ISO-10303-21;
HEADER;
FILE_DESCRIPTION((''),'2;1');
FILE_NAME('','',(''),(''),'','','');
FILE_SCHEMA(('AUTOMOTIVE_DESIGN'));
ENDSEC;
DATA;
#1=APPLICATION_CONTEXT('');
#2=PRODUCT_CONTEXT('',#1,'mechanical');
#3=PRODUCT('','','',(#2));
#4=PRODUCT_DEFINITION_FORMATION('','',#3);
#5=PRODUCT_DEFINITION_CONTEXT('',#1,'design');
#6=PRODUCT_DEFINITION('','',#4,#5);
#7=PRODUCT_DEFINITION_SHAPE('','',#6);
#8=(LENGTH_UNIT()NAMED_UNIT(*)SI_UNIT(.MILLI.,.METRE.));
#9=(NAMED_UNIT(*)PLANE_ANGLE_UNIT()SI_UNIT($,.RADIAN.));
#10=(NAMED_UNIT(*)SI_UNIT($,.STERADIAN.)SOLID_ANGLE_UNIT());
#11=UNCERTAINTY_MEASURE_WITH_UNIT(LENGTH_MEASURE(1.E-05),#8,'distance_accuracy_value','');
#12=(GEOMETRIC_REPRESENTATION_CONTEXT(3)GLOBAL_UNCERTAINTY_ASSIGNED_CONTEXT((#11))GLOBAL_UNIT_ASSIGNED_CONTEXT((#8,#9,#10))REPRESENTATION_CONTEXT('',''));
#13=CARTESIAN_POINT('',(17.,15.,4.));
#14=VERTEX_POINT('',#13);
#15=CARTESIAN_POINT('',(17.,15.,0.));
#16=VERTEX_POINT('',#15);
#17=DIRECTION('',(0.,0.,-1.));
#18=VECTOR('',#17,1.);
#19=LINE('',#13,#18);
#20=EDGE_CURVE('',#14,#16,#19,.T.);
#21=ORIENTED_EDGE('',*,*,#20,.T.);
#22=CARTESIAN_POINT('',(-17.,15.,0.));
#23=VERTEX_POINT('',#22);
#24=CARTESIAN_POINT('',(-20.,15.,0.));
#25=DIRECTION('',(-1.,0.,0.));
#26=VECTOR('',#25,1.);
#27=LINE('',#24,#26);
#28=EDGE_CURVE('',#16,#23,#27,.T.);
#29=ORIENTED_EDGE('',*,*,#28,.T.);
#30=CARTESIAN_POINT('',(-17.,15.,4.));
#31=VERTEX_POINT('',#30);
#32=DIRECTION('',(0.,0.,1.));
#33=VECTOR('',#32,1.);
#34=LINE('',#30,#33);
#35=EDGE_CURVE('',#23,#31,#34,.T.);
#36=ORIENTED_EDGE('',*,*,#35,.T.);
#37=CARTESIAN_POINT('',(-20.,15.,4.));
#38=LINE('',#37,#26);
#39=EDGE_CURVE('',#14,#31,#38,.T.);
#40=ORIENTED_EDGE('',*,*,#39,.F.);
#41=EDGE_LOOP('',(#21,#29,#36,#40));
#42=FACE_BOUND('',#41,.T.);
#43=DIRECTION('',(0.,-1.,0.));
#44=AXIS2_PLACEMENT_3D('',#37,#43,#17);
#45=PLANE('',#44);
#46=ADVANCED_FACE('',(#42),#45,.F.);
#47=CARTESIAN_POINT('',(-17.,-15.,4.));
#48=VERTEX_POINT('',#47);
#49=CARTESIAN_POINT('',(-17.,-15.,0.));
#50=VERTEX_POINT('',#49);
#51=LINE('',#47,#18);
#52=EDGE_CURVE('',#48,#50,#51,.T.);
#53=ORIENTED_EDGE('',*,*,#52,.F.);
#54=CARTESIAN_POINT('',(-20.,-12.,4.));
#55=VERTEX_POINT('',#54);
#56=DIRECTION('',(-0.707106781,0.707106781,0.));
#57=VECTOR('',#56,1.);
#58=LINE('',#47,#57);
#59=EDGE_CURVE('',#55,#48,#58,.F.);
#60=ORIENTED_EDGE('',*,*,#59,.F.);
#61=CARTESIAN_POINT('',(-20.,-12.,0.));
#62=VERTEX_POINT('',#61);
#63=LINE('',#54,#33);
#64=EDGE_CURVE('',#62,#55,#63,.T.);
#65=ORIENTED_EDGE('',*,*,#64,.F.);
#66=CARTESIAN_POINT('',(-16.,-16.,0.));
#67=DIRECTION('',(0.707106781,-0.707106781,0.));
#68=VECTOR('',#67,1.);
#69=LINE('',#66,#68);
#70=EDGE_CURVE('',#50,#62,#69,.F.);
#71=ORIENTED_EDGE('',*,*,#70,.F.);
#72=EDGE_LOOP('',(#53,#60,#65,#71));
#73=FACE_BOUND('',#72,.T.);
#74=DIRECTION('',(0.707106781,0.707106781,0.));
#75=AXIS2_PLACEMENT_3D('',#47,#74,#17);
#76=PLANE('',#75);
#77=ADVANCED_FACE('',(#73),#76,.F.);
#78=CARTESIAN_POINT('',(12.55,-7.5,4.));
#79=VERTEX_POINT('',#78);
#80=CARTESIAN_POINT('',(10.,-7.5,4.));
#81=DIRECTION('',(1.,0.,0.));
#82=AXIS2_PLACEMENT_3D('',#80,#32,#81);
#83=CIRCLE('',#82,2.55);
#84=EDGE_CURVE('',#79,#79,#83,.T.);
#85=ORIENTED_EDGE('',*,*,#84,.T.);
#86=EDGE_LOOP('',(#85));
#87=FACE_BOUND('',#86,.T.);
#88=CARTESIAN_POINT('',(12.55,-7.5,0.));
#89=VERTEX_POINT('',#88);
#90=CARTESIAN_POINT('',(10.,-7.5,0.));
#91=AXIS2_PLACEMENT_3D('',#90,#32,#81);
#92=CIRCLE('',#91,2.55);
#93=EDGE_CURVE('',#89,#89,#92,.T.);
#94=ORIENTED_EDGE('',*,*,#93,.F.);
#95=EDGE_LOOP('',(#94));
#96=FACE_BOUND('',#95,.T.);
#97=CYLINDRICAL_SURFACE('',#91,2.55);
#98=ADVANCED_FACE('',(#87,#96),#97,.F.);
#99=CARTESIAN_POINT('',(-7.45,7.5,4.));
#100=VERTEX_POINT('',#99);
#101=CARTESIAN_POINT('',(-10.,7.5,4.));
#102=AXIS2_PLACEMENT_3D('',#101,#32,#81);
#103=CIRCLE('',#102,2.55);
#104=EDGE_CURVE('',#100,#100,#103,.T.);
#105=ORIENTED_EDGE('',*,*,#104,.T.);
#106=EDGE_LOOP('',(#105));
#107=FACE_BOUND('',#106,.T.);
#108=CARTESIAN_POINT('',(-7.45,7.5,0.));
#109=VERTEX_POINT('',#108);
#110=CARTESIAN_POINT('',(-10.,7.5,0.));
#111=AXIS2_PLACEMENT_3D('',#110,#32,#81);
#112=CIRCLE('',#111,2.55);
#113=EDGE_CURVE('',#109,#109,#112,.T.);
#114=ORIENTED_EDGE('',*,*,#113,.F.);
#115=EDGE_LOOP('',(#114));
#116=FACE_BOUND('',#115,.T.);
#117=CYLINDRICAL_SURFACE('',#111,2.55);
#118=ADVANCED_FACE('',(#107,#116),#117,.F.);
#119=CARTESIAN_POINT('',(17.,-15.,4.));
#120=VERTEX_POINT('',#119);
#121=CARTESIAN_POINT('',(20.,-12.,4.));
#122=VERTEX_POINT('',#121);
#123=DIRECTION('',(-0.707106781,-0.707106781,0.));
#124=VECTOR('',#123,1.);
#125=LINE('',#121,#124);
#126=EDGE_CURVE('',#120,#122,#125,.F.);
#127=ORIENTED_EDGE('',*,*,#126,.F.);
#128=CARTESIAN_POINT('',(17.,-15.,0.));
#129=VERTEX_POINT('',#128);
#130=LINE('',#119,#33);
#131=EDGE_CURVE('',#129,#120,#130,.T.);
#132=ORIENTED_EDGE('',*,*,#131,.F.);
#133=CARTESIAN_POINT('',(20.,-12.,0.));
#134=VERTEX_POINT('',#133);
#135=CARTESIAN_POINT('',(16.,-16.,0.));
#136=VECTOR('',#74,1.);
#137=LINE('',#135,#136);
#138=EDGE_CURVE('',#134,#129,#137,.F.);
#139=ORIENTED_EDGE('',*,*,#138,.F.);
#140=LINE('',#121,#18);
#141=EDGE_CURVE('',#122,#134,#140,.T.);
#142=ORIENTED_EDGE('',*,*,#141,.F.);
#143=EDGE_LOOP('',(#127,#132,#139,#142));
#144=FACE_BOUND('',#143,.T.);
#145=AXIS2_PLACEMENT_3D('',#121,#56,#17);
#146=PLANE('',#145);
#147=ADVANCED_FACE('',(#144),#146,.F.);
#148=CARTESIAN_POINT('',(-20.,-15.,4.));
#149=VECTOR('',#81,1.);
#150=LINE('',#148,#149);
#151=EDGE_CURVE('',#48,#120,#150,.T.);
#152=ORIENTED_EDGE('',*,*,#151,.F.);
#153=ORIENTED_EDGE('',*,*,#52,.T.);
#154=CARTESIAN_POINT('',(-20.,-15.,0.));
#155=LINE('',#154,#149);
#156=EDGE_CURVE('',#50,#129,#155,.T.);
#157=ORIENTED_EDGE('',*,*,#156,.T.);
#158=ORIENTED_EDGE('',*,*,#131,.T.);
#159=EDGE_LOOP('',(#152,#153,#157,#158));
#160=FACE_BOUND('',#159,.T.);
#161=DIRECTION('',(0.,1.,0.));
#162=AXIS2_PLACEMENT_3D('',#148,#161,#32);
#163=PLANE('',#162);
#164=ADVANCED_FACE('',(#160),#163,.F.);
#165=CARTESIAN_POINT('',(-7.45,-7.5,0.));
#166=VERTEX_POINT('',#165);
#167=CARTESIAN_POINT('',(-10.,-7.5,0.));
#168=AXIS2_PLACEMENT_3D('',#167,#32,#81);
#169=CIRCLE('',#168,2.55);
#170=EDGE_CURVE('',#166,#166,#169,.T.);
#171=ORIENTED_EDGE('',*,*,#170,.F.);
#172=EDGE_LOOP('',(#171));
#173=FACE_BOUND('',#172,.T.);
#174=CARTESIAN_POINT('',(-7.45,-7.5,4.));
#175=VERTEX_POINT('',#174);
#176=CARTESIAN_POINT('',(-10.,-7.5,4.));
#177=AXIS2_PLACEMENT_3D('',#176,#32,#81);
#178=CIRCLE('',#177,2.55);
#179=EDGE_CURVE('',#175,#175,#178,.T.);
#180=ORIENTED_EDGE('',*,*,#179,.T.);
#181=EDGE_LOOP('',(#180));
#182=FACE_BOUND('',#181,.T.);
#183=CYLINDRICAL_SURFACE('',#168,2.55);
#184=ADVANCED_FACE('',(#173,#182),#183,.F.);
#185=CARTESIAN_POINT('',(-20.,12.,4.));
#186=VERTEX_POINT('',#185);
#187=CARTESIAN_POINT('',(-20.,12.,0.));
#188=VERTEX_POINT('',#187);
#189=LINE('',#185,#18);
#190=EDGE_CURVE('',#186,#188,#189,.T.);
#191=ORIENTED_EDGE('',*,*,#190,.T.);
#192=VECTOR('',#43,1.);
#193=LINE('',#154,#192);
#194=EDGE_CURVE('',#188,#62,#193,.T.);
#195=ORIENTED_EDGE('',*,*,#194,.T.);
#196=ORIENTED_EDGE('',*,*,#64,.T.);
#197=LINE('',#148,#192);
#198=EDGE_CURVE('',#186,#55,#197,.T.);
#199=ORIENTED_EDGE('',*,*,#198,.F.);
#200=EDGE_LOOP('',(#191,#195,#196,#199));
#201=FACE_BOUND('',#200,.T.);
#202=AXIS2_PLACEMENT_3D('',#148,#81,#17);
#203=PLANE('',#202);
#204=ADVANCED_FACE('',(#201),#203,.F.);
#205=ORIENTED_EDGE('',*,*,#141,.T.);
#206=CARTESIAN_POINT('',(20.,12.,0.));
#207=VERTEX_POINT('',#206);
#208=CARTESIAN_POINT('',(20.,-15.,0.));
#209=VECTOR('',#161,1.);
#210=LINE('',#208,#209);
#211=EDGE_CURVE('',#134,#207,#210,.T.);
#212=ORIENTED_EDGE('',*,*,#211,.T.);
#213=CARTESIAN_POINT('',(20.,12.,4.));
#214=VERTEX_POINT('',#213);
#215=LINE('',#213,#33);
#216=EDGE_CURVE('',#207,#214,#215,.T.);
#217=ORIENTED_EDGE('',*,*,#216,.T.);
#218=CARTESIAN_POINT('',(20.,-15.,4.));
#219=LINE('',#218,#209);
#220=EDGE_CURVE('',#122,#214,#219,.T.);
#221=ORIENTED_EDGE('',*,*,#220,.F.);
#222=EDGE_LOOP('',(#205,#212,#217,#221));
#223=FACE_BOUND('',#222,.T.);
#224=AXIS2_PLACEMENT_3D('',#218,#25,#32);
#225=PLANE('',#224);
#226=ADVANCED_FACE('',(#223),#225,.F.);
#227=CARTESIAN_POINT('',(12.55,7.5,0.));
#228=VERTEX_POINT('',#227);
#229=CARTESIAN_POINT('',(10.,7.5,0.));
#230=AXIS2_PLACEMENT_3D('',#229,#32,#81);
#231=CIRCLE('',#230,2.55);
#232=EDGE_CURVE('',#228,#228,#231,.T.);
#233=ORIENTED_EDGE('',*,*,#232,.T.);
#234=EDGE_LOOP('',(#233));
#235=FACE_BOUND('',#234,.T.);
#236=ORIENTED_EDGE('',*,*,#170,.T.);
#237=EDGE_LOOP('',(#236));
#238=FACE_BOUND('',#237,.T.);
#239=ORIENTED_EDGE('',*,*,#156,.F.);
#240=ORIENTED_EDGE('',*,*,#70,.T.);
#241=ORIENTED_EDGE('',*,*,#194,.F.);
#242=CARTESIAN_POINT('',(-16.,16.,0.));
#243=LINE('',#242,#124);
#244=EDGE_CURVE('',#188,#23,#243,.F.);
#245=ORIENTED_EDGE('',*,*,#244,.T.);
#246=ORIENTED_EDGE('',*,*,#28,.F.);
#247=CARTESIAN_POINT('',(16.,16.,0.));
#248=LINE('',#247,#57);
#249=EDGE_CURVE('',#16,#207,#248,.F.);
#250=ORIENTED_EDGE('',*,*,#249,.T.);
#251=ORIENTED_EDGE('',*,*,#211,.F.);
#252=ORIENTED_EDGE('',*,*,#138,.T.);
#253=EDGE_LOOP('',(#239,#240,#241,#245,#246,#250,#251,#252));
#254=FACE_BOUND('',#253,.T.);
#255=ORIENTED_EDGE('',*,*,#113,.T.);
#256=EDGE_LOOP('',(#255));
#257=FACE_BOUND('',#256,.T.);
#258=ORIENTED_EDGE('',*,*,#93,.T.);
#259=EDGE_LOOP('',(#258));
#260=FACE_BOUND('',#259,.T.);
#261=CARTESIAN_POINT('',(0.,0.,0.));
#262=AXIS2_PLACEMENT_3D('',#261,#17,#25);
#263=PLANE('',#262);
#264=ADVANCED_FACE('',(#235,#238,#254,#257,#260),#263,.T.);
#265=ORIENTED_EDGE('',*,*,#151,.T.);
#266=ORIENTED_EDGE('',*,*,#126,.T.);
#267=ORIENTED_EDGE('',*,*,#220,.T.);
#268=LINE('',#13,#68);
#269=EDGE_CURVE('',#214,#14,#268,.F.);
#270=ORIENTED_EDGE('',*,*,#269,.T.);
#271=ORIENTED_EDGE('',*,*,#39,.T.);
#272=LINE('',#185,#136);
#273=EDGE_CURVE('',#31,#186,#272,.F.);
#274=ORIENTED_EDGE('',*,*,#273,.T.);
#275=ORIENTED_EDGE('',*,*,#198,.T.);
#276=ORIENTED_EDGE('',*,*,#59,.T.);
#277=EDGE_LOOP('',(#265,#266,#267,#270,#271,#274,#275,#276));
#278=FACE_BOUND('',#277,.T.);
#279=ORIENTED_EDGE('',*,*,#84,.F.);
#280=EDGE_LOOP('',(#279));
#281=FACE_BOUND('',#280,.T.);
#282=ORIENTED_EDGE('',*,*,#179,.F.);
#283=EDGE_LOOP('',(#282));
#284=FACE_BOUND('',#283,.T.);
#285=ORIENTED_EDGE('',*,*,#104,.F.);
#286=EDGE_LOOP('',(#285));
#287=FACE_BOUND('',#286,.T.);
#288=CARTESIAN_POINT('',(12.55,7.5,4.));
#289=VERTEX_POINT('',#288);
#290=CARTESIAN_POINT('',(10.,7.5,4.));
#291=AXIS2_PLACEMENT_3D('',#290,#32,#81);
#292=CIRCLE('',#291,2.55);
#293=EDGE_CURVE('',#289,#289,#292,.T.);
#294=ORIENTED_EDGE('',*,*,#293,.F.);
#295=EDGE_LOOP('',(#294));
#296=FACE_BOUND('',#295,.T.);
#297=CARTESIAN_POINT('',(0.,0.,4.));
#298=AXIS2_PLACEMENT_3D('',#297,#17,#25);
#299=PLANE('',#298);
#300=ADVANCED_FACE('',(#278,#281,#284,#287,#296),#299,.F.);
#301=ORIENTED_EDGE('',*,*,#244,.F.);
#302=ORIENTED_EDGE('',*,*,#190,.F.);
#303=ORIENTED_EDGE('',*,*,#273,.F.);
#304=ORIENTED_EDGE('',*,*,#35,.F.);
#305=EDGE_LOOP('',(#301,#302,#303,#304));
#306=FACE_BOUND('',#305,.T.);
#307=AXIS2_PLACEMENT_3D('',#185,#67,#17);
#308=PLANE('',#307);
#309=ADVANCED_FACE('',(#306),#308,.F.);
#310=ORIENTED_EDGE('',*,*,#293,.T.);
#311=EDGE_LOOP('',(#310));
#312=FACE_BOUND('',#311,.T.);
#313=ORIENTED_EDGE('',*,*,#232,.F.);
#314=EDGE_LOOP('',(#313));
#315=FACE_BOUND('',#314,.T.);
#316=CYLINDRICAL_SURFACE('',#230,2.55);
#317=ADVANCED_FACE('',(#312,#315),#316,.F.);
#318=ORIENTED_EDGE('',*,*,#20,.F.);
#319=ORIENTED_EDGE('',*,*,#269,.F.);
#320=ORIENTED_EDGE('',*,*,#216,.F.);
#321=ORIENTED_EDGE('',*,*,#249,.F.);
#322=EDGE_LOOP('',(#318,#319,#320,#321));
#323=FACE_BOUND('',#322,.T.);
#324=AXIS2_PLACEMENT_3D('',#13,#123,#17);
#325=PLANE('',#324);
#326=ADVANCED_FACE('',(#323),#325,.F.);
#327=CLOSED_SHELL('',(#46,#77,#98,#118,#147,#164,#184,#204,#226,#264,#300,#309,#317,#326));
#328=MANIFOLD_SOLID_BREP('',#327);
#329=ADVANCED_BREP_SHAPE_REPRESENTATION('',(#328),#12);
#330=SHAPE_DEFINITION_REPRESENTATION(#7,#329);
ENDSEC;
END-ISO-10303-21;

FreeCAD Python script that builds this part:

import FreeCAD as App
import Part
import Sketcher


def edges_at(feature, points):
    """Names of the edges that pass closest to the given points."""
    edges = feature.Shape.Edges
    near = lambda p: min(range(len(edges)), key=lambda i: edges[i].distToShape(Part.Vertex(*p))[0])
    return sorted({f"Edge{near(p) + 1}" for p in points})

doc = App.newDocument("Part")
params = doc.addObject("Spreadsheet::Sheet", "Params")
for row, (alias, value) in enumerate([
    ("sketch1_width", "40 mm"),
    ("sketch1_height", "30 mm"),
    ("pad1_length", "4 mm"),
    ("sketch2_diameter", "5.1 mm"),
    ("chamfer_size", "3 mm"),
    ("linearpattern_pitch", "20 mm"),
], start=1):
    params.set(f"A{row}", alias)
    params.set(f"B{row}", "=" + value)
    params.setAlias(f"B{row}", alias)

body = doc.addObject("PartDesign::Body", "Body")

# Sketch on XY plane
sketch1 = body.newObject("Sketcher::SketchObject", "Sketch")
sketch1.AttachmentSupport = (doc.getObject("XY_Plane"), [""])
sketch1.MapMode = "FlatFace"
sketch1.addGeometry([
    Part.LineSegment(App.Vector(-20, 15, 0), App.Vector(-20, -15, 0)),
    Part.LineSegment(App.Vector(-20, -15, 0), App.Vector(20, -15, 0)),
    Part.LineSegment(App.Vector(20, -15, 0), App.Vector(20, 15, 0)),
    Part.LineSegment(App.Vector(20, 15, 0), App.Vector(-20, 15, 0)),
], False)
sketch1.addConstraint([
    Sketcher.Constraint("Coincident", 0, 2, 1, 1),
    Sketcher.Constraint("Coincident", 1, 2, 2, 1),
    Sketcher.Constraint("Coincident", 2, 2, 3, 1),
    Sketcher.Constraint("Coincident", 3, 2, 0, 1),
    Sketcher.Constraint("Vertical", 0),
    Sketcher.Constraint("Horizontal", 1),
    Sketcher.Constraint("Vertical", 2),
    Sketcher.Constraint("Horizontal", 3),
    Sketcher.Constraint("Symmetric", 0, 2, 2, 2, -1, 1),
    Sketcher.Constraint("DistanceX", 1, 1, 1, 2, 40.0),
    Sketcher.Constraint("DistanceY", 0, 2, 0, 1, 30.0),
])
sketch1.setExpression("Constraints[9]", "Params.sketch1_width")
sketch1.setExpression("Constraints[10]", "Params.sketch1_height")
pad1 = body.newObject("PartDesign::Pad", "Pad")
pad1.Profile = sketch1
pad1.setExpression("Length", "Params.pad1_length")

# Sketch on XY plane
sketch2 = body.newObject("Sketcher::SketchObject", "Sketch001")
sketch2.AttachmentSupport = (doc.getObject("XY_Plane"), [""])
sketch2.MapMode = "FlatFace"
sketch2.AttachmentOffset = App.Placement(App.Vector(0, 0, 4), App.Rotation())
sketch2.addGeometry([
    Part.Circle(App.Vector(10, 7.5, 0), App.Vector(0, 0, 1), 2.55),
    Part.Circle(App.Vector(10, -7.5, 0), App.Vector(0, 0, 1), 2.55),
], False)
sketch2.addConstraint([
    Sketcher.Constraint("Equal", 0, 1),
    Sketcher.Constraint("Symmetric", 0, 3, 1, 3, -1),
    Sketcher.Constraint("Diameter", 0, 5.1),
    Sketcher.Constraint("DistanceX", -1, 1, 0, 3, 10.0),
    Sketcher.Constraint("DistanceY", 1, 3, 0, 3, 15.0),
])
sketch2.setExpression("Constraints[2]", "Params.sketch2_diameter")
pocket1 = body.newObject("PartDesign::Pocket", "Pocket")
pocket1.Profile = sketch2
pocket1.Type = "ThroughAll"
doc.recompute()

chamfer = body.newObject("PartDesign::Chamfer", "Chamfer")
chamfer.Base = (pocket1, edges_at(pocket1, [
    (20, -15, 2),
    (-20, -15, 2),
    (-20, 15, 2),
    (20, 15, 2),
]))
chamfer.setExpression("Size", "Params.chamfer_size")
doc.recompute()

linearpattern = body.newObject("PartDesign::LinearPattern", "LinearPattern")
linearpattern.Originals = [pocket1]
linearpattern.Direction = (doc.getObject("X_Axis"), [""])
linearpattern.Mode = "offset"
linearpattern.setExpression("Offset", "Params.linearpattern_pitch")
linearpattern.Occurrences = 2
linearpattern.Reversed = True
body.Tip = linearpattern

doc.recompute()
